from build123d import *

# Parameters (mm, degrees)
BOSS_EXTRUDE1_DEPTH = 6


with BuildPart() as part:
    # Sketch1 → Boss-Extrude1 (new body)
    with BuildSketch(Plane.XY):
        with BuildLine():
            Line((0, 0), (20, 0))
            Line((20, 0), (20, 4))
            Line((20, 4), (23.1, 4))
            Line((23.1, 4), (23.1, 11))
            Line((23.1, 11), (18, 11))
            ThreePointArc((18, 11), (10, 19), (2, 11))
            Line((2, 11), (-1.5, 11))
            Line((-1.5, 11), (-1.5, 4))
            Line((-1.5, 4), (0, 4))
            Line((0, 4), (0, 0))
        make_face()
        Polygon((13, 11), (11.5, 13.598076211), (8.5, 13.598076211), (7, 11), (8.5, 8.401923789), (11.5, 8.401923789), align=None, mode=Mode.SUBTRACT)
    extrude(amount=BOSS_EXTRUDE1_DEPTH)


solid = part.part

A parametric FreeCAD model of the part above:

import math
import FreeCAD as App
import Part
import Sketcher
from FreeCAD import Vector
Q = App.Units.Quantity

doc = App.newDocument("Part")
body = doc.addObject("PartDesign::Body", "Body")

# Sketch on XY plane
sketch1 = body.newObject("Sketcher::SketchObject", "Sketch")
sketch1.AttachmentSupport = (doc.getObject("XY_Plane"), [""])
sketch1.MapMode = "FlatFace"
sketch1.addGeometry(Part.LineSegment(Vector(0, 0, 0), Vector(20, 0, 0)), False)
sketch1.addGeometry(Part.LineSegment(Vector(20, 0, 0), Vector(20, 4, 0)), False)
sketch1.addGeometry(Part.LineSegment(Vector(20, 4, 0), Vector(23.1, 4, 0)), False)
sketch1.addGeometry(Part.LineSegment(Vector(23.1, 4, 0), Vector(23.1, 11, 0)), False)
sketch1.addGeometry(Part.LineSegment(Vector(23.1, 11, 0), Vector(18, 11, 0)), False)
sketch1.addGeometry(Part.ArcOfCircle(Part.Circle(Vector(10, 11, 0), Vector(0, 0, 1), 8), math.radians(0), math.radians(180)), False)
sketch1.addGeometry(Part.LineSegment(Vector(2, 11, 0), Vector(-1.5, 11, 0)), False)
sketch1.addGeometry(Part.LineSegment(Vector(-1.5, 11, 0), Vector(-1.5, 4, 0)), False)
sketch1.addGeometry(Part.LineSegment(Vector(-1.5, 4, 0), Vector(0, 4, 0)), False)
sketch1.addGeometry(Part.LineSegment(Vector(0, 4, 0), Vector(0, 0, 0)), False)
sketch1.addGeometry(Part.LineSegment(Vector(11.5, 13.6, 0), Vector(13, 11, 0)), False)
sketch1.addGeometry(Part.LineSegment(Vector(13, 11, 0), Vector(11.5, 8.4, 0)), False)
sketch1.addGeometry(Part.LineSegment(Vector(11.5, 8.4, 0), Vector(8.5, 8.4, 0)), False)
sketch1.addGeometry(Part.LineSegment(Vector(8.5, 8.4, 0), Vector(7, 11, 0)), False)
sketch1.addGeometry(Part.LineSegment(Vector(7, 11, 0), Vector(8.5, 13.6, 0)), False)
sketch1.addGeometry(Part.LineSegment(Vector(8.5, 13.6, 0), Vector(11.5, 13.6, 0)), False)
sketch1.addConstraint(Sketcher.Constraint("Coincident", 0, 2, 1, 1))
sketch1.addConstraint(Sketcher.Constraint("Coincident", 1, 2, 2, 1))
sketch1.addConstraint(Sketcher.Constraint("Coincident", 2, 2, 3, 1))
sketch1.addConstraint(Sketcher.Constraint("Coincident", 3, 2, 4, 1))
sketch1.addConstraint(Sketcher.Constraint("Coincident", 4, 2, 5, 1))
sketch1.addConstraint(Sketcher.Constraint("Coincident", 5, 2, 6, 1))
sketch1.addConstraint(Sketcher.Constraint("Coincident", 6, 2, 7, 1))
sketch1.addConstraint(Sketcher.Constraint("Coincident", 7, 2, 8, 1))
sketch1.addConstraint(Sketcher.Constraint("Coincident", 8, 2, 9, 1))
sketch1.addConstraint(Sketcher.Constraint("Coincident", 9, 2, 0, 1))
sketch1.addConstraint(Sketcher.Constraint("Coincident", 10, 2, 11, 1))
sketch1.addConstraint(Sketcher.Constraint("Coincident", 11, 2, 12, 1))
sketch1.addConstraint(Sketcher.Constraint("Coincident", 12, 2, 13, 1))
sketch1.addConstraint(Sketcher.Constraint("Coincident", 13, 2, 14, 1))
sketch1.addConstraint(Sketcher.Constraint("Coincident", 14, 2, 15, 1))
sketch1.addConstraint(Sketcher.Constraint("Coincident", 15, 2, 10, 1))
sketch1.addConstraint(Sketcher.Constraint("Horizontal", 0))
sketch1.addConstraint(Sketcher.Constraint("Vertical", 1))
sketch1.addConstraint(Sketcher.Constraint("Horizontal", 2))
sketch1.addConstraint(Sketcher.Constraint("Vertical", 3))
sketch1.addConstraint(Sketcher.Constraint("Horizontal", 4))
sketch1.addConstraint(Sketcher.Constraint("Horizontal", 6))
sketch1.addConstraint(Sketcher.Constraint("Vertical", 7))
sketch1.addConstraint(Sketcher.Constraint("Horizontal", 8))
sketch1.addConstraint(Sketcher.Constraint("Vertical", 9))
sketch1.addConstraint(Sketcher.Constraint("Horizontal", 12))
sketch1.addConstraint(Sketcher.Constraint("Horizontal", 15))
sketch1.addConstraint(Sketcher.Constraint("Coincident", 9, 2, -1, 1))
sketch1.addConstraint(Sketcher.Constraint("Parallel", 10, 13))
sketch1.addConstraint(Sketcher.Constraint("Parallel", 11, 14))
sketch1.addConstraint(Sketcher.Constraint("Horizontal", 5, 3, 3, 2))
sketch1.addConstraint(Sketcher.Constraint("Horizontal", 4, 2, 5, 2))
sketch1.addConstraint(Sketcher.Constraint("Horizontal", 2, 2, 7, 2))
sketch1.addConstraint(Sketcher.Constraint("Horizontal", 6, 2, 10, 2))
sketch1.addConstraint(Sketcher.Constraint("Horizontal", 10, 2, 13, 2))
sketch1.addConstraint(Sketcher.Constraint("Vertical", 12, 2, 14, 2))
sketch1.addConstraint(Sketcher.Constraint("Vertical", 11, 2, 15, 2))
sketch1.addConstraint(Sketcher.Constraint("Radius", 5, 8.0))
sketch1.addConstraint(Sketcher.Constraint("DistanceX", 0, 1, 0, 2, 20.0))
sketch1.addConstraint(Sketcher.Constraint("DistanceX", 12, 2, 12, 1, 3.0))
sketch1.addConstraint(Sketcher.Constraint("DistanceY", 1, 1, 1, 2, 4.0))
sketch1.addConstraint(Sketcher.Constraint("DistanceY", 3, 1, 3, 2, 7.0))
sketch1.addConstraint(Sketcher.Constraint("Angle", 10, Q("-60 deg")))
sketch1.addConstraint(Sketcher.Constraint("Distance", 10, 3.0))
sketch1.addConstraint(Sketcher.Constraint("DistanceX", 2, 1, 2, 2, 3.1))
sketch1.addConstraint(Sketcher.Constraint("DistanceX", 4, 2, 4, 1, 5.1))
sketch1.addConstraint(Sketcher.Constraint("DistanceX", 6, 2, 6, 1, 3.5))
sketch1.addConstraint(Sketcher.Constraint("DistanceX", -1, 1, 10, 2, 13.0))
pad1 = body.newObject("PartDesign::Pad", "Pad")
pad1.Profile = sketch1
pad1.Length = 6

doc.recompute()
